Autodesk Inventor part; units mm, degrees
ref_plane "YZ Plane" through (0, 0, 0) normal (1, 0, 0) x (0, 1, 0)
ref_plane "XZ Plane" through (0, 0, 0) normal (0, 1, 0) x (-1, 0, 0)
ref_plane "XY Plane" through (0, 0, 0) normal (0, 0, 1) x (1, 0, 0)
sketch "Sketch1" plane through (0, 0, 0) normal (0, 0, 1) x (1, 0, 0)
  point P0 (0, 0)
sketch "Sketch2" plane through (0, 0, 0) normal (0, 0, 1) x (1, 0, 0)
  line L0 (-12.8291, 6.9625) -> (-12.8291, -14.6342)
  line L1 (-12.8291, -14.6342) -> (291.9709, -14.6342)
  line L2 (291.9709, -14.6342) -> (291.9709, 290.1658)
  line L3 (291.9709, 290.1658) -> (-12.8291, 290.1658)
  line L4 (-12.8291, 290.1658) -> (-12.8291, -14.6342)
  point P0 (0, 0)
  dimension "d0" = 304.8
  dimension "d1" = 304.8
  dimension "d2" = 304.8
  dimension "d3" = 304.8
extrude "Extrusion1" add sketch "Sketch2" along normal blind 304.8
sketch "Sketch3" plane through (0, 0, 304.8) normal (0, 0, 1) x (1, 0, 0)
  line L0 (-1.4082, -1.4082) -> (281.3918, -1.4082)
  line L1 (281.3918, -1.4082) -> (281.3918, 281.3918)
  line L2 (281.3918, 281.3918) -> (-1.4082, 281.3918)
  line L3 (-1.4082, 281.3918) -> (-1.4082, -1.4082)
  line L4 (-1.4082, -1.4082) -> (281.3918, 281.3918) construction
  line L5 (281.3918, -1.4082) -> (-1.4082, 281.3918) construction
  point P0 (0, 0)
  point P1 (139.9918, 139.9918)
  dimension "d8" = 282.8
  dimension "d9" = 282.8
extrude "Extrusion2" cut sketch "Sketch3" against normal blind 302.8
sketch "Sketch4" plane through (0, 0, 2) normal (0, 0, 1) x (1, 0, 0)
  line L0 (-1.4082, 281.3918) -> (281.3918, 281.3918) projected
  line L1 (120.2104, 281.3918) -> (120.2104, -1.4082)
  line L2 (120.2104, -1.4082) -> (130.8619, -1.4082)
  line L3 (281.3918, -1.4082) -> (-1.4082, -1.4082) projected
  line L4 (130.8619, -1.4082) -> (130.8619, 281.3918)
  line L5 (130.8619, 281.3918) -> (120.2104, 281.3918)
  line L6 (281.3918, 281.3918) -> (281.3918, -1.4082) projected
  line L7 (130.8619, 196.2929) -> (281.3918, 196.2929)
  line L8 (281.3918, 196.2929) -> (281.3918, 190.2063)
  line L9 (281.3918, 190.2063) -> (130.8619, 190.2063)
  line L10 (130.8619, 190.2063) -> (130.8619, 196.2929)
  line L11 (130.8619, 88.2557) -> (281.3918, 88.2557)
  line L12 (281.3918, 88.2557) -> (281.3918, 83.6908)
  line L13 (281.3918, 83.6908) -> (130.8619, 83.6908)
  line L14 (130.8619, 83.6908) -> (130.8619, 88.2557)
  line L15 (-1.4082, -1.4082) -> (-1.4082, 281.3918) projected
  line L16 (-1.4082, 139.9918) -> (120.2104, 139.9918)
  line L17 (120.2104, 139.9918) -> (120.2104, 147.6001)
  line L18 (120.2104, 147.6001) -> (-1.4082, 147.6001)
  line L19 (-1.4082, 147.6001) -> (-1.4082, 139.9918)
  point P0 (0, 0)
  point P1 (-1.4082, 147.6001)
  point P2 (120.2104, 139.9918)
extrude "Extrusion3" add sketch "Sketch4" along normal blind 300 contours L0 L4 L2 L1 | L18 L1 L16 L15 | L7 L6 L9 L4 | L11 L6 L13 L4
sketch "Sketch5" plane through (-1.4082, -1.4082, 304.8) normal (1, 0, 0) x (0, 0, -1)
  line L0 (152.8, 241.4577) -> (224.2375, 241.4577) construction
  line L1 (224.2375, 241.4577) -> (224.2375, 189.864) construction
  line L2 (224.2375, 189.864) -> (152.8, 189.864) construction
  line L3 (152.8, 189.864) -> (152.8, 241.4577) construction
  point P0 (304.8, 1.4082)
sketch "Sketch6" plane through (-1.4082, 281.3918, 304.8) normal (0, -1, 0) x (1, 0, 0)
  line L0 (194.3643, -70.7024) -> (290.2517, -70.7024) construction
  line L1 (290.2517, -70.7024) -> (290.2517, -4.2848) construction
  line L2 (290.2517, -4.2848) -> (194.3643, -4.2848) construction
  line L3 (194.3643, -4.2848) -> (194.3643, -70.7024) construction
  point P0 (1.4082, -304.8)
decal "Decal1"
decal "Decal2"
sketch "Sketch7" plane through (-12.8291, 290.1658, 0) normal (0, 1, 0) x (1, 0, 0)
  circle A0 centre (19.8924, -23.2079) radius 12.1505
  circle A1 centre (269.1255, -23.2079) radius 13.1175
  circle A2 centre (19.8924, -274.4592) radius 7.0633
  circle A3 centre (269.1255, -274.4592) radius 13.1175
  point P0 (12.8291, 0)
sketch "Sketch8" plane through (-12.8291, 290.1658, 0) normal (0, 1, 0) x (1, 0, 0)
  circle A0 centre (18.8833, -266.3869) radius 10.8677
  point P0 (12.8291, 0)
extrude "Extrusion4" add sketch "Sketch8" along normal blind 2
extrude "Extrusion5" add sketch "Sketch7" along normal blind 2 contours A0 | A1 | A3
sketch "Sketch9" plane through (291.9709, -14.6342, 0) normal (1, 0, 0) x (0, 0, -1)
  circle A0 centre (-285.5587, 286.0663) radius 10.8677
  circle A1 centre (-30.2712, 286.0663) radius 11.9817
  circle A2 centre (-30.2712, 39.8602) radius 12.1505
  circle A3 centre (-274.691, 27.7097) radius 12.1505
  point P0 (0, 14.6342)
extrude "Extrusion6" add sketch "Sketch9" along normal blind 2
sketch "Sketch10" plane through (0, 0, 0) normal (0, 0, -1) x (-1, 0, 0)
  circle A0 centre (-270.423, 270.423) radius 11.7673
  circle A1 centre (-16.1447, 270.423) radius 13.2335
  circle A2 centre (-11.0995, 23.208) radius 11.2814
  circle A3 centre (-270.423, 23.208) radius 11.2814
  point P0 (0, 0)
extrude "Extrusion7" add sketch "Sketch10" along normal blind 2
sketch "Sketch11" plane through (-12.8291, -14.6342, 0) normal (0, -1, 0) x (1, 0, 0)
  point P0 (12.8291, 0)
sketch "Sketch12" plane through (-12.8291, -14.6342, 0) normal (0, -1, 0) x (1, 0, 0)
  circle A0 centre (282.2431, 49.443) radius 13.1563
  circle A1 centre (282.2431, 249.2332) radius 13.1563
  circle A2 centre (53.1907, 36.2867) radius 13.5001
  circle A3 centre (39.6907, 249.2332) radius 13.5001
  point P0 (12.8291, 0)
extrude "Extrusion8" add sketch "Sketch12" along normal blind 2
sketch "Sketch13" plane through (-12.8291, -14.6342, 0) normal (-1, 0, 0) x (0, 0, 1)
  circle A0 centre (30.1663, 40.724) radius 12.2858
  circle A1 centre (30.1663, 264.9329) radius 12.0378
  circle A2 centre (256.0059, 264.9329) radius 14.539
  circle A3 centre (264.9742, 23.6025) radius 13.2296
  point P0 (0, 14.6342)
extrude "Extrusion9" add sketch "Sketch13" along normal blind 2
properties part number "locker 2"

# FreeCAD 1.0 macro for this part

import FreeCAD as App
import Part
import Sketcher
from FreeCAD import Vector
Q = App.Units.Quantity


def add_polygon(sketch, points):
    """Adds a closed chain of lines whose ends are joined by coincident constraints."""
    first, n = sketch.GeometryCount, len(points)
    for a, b in zip(points, points[1:] + points[:1]):
        sketch.addGeometry(Part.LineSegment(App.Vector(*a, 0), App.Vector(*b, 0)), False)
    for i in range(n):
        sketch.addConstraint(Sketcher.Constraint("Coincident", first + i, 2, first + (i + 1) % n, 1))

doc = App.newDocument("Part")
body = doc.addObject("PartDesign::Body", "Body")

# Sketch on XY plane
sketch1 = body.newObject("Sketcher::SketchObject", "Sketch")
sketch1.AttachmentSupport = (doc.getObject("XY_Plane"), [""])
sketch1.MapMode = "FlatFace"
add_polygon(sketch1, [(-13, 290), (-13, -15), (292, -15), (292, 290)])  # lines 0-3
sketch1.addConstraint([
    Sketcher.Constraint("Vertical", 0),
    Sketcher.Constraint("Horizontal", 1),
    Sketcher.Constraint("Vertical", 2),
    Sketcher.Constraint("Horizontal", 3),
    Sketcher.Constraint("Equal", 3, 0),
    Sketcher.Constraint("DistanceX", 1, 1, 1, 2, Q("304.8 mm")),
    Sketcher.Constraint("DistanceX", 0, 2, -1, 1, Q("12.829 mm")),
    Sketcher.Constraint("DistanceY", 0, 2, -1, 1, Q("14.6342 mm")),
])
pad1 = body.newObject("PartDesign::Pad", "Pad")
pad1.Profile = sketch1
pad1.Length = 304.8

# Sketch on XY plane
sketch2 = body.newObject("Sketcher::SketchObject", "Sketch001")
sketch2.AttachmentSupport = (doc.getObject("XY_Plane"), [""])
sketch2.MapMode = "FlatFace"
sketch2.AttachmentOffset = App.Placement(Vector(0, 0, 304.8), App.Rotation())
add_polygon(sketch2, [(-1, 281), (-1, -1), (281, -1), (281, 281)])  # lines 0-3
sketch2.addConstraint([
    Sketcher.Constraint("Vertical", 0),
    Sketcher.Constraint("Horizontal", 1),
    Sketcher.Constraint("Vertical", 2),
    Sketcher.Constraint("Horizontal", 3),
    Sketcher.Constraint("Equal", 3, 0),
    Sketcher.Constraint("DistanceX", 1, 1, 1, 2, Q("282.8 mm")),
    Sketcher.Constraint("DistanceX", 0, 2, -1, 1, Q("1.4082 mm")),
    Sketcher.Constraint("DistanceY", 0, 2, -1, 1, Q("1.4082 mm")),
])
pocket1 = body.newObject("PartDesign::Pocket", "Pocket")
pocket1.Profile = sketch2
pocket1.Length = 302.8

# Sketch on XY plane
sketch3 = body.newObject("Sketcher::SketchObject", "Sketch002")
sketch3.AttachmentSupport = (doc.getObject("XY_Plane"), [""])
sketch3.MapMode = "FlatFace"
sketch3.AttachmentOffset = App.Placement(Vector(0, 0, 2), App.Rotation())
add_polygon(sketch3, [(130.9, 281.4), (120.2, 281.4), (120.2, 147.6), (-1.4, 147.6), (-1.4, 140), (120.2, 140), (120.2, -1.4), (130.9, -1.4), (130.9, 83.7), (281.4, 83.7), (281.4, 88.3), (130.9, 88.3), (130.9, 190.2), (281.4, 190.2), (281.4, 196.3), (130.9, 196.3)])  # lines 0-15
sketch3.addConstraint([
    Sketcher.Constraint("Horizontal", 0),
    Sketcher.Constraint("Vertical", 1),
    Sketcher.Constraint("Horizontal", 2),
    Sketcher.Constraint("Vertical", 3),
    Sketcher.Constraint("Horizontal", 4),
    Sketcher.Constraint("Vertical", 5),
    Sketcher.Constraint("Horizontal", 6),
    Sketcher.Constraint("Vertical", 7),
    Sketcher.Constraint("Horizontal", 8),
    Sketcher.Constraint("Vertical", 9),
    Sketcher.Constraint("Horizontal", 10),
    Sketcher.Constraint("Vertical", 11),
    Sketcher.Constraint("Horizontal", 12),
    Sketcher.Constraint("Vertical", 13),
    Sketcher.Constraint("Horizontal", 14),
    Sketcher.Constraint("Vertical", 15),
    Sketcher.Constraint("Vertical", 1, 2, 4, 2),
    Sketcher.Constraint("Vertical", 7, 2, 10, 2),
    Sketcher.Constraint("Vertical", 9, 2, 12, 2),
    Sketcher.Constraint("Vertical", 11, 2, 14, 2),
    Sketcher.Constraint("Equal", 7, 15),
    Sketcher.Constraint("DistanceY", 5, 2, 5, 1, Q("141.4 mm")),
    Sketcher.Constraint("DistanceX", 8, 1, 8, 2, Q("150.53 mm")),
    Sketcher.Constraint("DistanceY", -1, 1, 1, 2, Q("147.6 mm")),
    Sketcher.Constraint("DistanceY", 3, 2, 0, 2, Q("141.4 mm")),
    Sketcher.Constraint("DistanceY", 7, 1, 7, 2, Q("85.099 mm")),
    Sketcher.Constraint("DistanceY", 9, 1, 9, 2, Q("4.565 mm")),
    Sketcher.Constraint("DistanceX", 3, 2, 6, 2, Q("132.27 mm")),
    Sketcher.Constraint("DistanceX", 0, 2, 0, 1, Q("10.6515 mm")),
    Sketcher.Constraint("DistanceY", 1, 2, 1, 1, Q("133.7917 mm")),
    Sketcher.Constraint("DistanceY", 11, 1, 11, 2, Q("101.9506 mm")),
    Sketcher.Constraint("DistanceX", -1, 1, 6, 2, Q("130.862 mm")),
])
pad2 = body.newObject("PartDesign::Pad", "Pad001")
pad2.Profile = sketch3
pad2.Length = 300

# Sketch on XZ plane
sketch4 = body.newObject("Sketcher::SketchObject", "Sketch003")
sketch4.AttachmentSupport = (doc.getObject("XZ_Plane"), [""])
sketch4.MapMode = "FlatFace"
sketch4.AttachmentOffset = App.Placement(Vector(0, 0, -290.1658), App.Rotation())
sketch4.addGeometry(Part.Circle(Vector(6, 266, 0), Vector(0, 0, 1), 11), False)
sketch4.addConstraint([
    Sketcher.Constraint("Diameter", 0, Q("21.7354 mm")),
    Sketcher.Constraint("DistanceY", -1, 1, 0, 3, Q("266.387 mm")),
    Sketcher.Constraint("DistanceX", -1, 1, 0, 3, Q("6.0542 mm")),
])
pad3 = body.newObject("PartDesign::Pad", "Pad002")
pad3.Profile = sketch4
pad3.Length = 2
pad3.Reversed = True

# Sketch on XZ plane
sketch5 = body.newObject("Sketcher::SketchObject", "Sketch004")
sketch5.AttachmentSupport = (doc.getObject("XZ_Plane"), [""])
sketch5.MapMode = "FlatFace"
sketch5.AttachmentOffset = App.Placement(Vector(0, 0, -290.1658), App.Rotation())
sketch5.addGeometry([
    Part.Circle(Vector(7, 23, 0), Vector(0, 0, 1), 12),
    Part.Circle(Vector(256, 23, 0), Vector(0, 0, 1), 13),
    Part.Circle(Vector(256, 274, 0), Vector(0, 0, 1), 13),
], False)
sketch5.addConstraint([
    Sketcher.Constraint("Equal", 1, 2),
    Sketcher.Constraint("Horizontal", 0, 3, 1, 3),
    Sketcher.Constraint("Vertical", 1, 3, 2, 3),
    Sketcher.Constraint("Diameter", 0, Q("24.301 mm")),
    Sketcher.Constraint("Diameter", 1, Q("26.235 mm")),
    Sketcher.Constraint("DistanceY", -1, 1, 0, 3, Q("23.208 mm")),
    Sketcher.Constraint("DistanceX", 0, 3, 1, 3, Q("249.233 mm")),
    Sketcher.Constraint("DistanceX", -1, 1, 0, 3, Q("7.0633 mm")),
    Sketcher.Constraint("DistanceY", -1, 1, 2, 3, Q("274.4592 mm")),
])
pad4 = body.newObject("PartDesign::Pad", "Pad003")
pad4.Profile = sketch5
pad4.Length = 2
pad4.Reversed = True

# Sketch on YZ plane
sketch6 = body.newObject("Sketcher::SketchObject", "Sketch005")
sketch6.AttachmentSupport = (doc.getObject("YZ_Plane"), [""])
sketch6.MapMode = "FlatFace"
sketch6.AttachmentOffset = App.Placement(Vector(0, 0, 291.9709), App.Rotation())
sketch6.addGeometry([
    Part.Circle(Vector(271, 286, 0), Vector(0, 0, 1), 11),
    Part.Circle(Vector(271, 30, 0), Vector(0, 0, 1), 12),
    Part.Circle(Vector(25, 30, 0), Vector(0, 0, 1), 12),
    Part.Circle(Vector(13, 275, 0), Vector(0, 0, 1), 12),
], False)
sketch6.addConstraint([
    Sketcher.Constraint("Equal", 2, 3),
    Sketcher.Constraint("Horizontal", 1, 3, 2, 3),
    Sketcher.Constraint("Vertical", 0, 3, 1, 3),
    Sketcher.Constraint("Diameter", 2, Q("24.301 mm")),
    Sketcher.Constraint("Diameter", 0, Q("21.7354 mm")),
    Sketcher.Constraint("Diameter", 1, Q("23.9634 mm")),
    Sketcher.Constraint("DistanceX", -1, 1, 0, 3, Q("271.432 mm")),
    Sketcher.Constraint("DistanceX", -1, 1, 2, 3, Q("25.226 mm")),
    Sketcher.Constraint("DistanceY", -1, 1, 3, 3, Q("274.691 mm")),
    Sketcher.Constraint("DistanceY", -1, 1, 0, 3, Q("285.5587 mm")),
    Sketcher.Constraint("DistanceY", -1, 1, 1, 3, Q("30.2712 mm")),
    Sketcher.Constraint("DistanceX", -1, 1, 3, 3, Q("13.0755 mm")),
])
pad5 = body.newObject("PartDesign::Pad", "Pad004")
pad5.Profile = sketch6
pad5.Length = 2

# Sketch on XY plane
sketch7 = body.newObject("Sketcher::SketchObject", "Sketch006")
sketch7.AttachmentSupport = (doc.getObject("XY_Plane"), [""])
sketch7.MapMode = "FlatFace"
sketch7.addGeometry([
    Part.Circle(Vector(270, 270, 0), Vector(0, 0, 1), 12),
    Part.Circle(Vector(16, 270, 0), Vector(0, 0, 1), 13),
    Part.Circle(Vector(11, 23, 0), Vector(0, 0, 1), 11),
    Part.Circle(Vector(270, 23, 0), Vector(0, 0, 1), 11),
], False)
sketch7.addConstraint([
    Sketcher.Constraint("Equal", 2, 3),
    Sketcher.Constraint("Horizontal", 0, 3, 1, 3),
    Sketcher.Constraint("Horizontal", 2, 3, 3, 3),
    Sketcher.Constraint("Vertical", 0, 3, 3, 3),
    Sketcher.Constraint("Diameter", 1, Q("26.467 mm")),
    Sketcher.Constraint("Diameter", 0, Q("23.5346 mm")),
    Sketcher.Constraint("Diameter", 2, Q("22.5628 mm")),
    Sketcher.Constraint("DistanceX", -1, 1, 0, 3, Q("270.423 mm")),
    Sketcher.Constraint("DistanceY", -1, 1, 0, 3, Q("270.423 mm")),
    Sketcher.Constraint("DistanceY", -1, 1, 2, 3, Q("23.208 mm")),
    Sketcher.Constraint("DistanceX", -1, 1, 1, 3, Q("16.1447 mm")),
    Sketcher.Constraint("DistanceX", -1, 1, 2, 3, Q("11.0995 mm")),
])
pad6 = body.newObject("PartDesign::Pad", "Pad005")
pad6.Profile = sketch7
pad6.Length = 2
pad6.Reversed = True

# Sketch on XZ plane
sketch8 = body.newObject("Sketcher::SketchObject", "Sketch007")
sketch8.AttachmentSupport = (doc.getObject("XZ_Plane"), [""])
sketch8.MapMode = "FlatFace"
sketch8.AttachmentOffset = App.Placement(Vector(0, 0, 14.6342), App.Rotation())
sketch8.addGeometry([
    Part.Circle(Vector(269, 49, 0), Vector(0, 0, 1), 13),
    Part.Circle(Vector(269, 249, 0), Vector(0, 0, 1), 13),
    Part.Circle(Vector(40, 36, 0), Vector(0, 0, 1), 14),
    Part.Circle(Vector(27, 249, 0), Vector(0, 0, 1), 14),
], False)
sketch8.addConstraint([
    Sketcher.Constraint("Equal", 0, 1),
    Sketcher.Constraint("Equal", 2, 3),
    Sketcher.Constraint("Horizontal", 1, 3, 3, 3),
    Sketcher.Constraint("Vertical", 0, 3, 1, 3),
    Sketcher.Constraint("Diameter", 0, Q("26.3126 mm")),
    Sketcher.Constraint("Diameter", 2, Q("27.0002 mm")),
    Sketcher.Constraint("DistanceX", 3, 3, 2, 3, Q("13.5 mm")),
    Sketcher.Constraint("DistanceX", -1, 1, 0, 3, Q("269.414 mm")),
    Sketcher.Constraint("DistanceY", -1, 1, 0, 3, Q("49.443 mm")),
    Sketcher.Constraint("DistanceY", -1, 1, 1, 3, Q("249.2332 mm")),
    Sketcher.Constraint("DistanceX", -1, 1, 2, 3, Q("40.3616 mm")),
    Sketcher.Constraint("DistanceY", -1, 1, 2, 3, Q("36.2867 mm")),
])
pad7 = body.newObject("PartDesign::Pad", "Pad006")
pad7.Profile = sketch8
pad7.Length = 2

# Sketch on YZ plane
sketch9 = body.newObject("Sketcher::SketchObject", "Sketch008")
sketch9.AttachmentSupport = (doc.getObject("YZ_Plane"), [""])
sketch9.MapMode = "FlatFace"
sketch9.AttachmentOffset = App.Placement(Vector(0, 0, -12.8291), App.Rotation())
sketch9.addGeometry([
    Part.Circle(Vector(26, 30, 0), Vector(0, 0, 1), 12),
    Part.Circle(Vector(250, 30, 0), Vector(0, 0, 1), 12),
    Part.Circle(Vector(250, 256, 0), Vector(0, 0, 1), 15),
    Part.Circle(Vector(9, 265, 0), Vector(0, 0, 1), 13),
], False)
sketch9.addConstraint([
    Sketcher.Constraint("Horizontal", 0, 3, 1, 3),
    Sketcher.Constraint("Vertical", 1, 3, 2, 3),
    Sketcher.Constraint("Diameter", 2, Q("29.078 mm")),
    Sketcher.Constraint("Diameter", 0, Q("24.5716 mm")),
    Sketcher.Constraint("Diameter", 1, Q("24.0756 mm")),
    Sketcher.Constraint("Diameter", 3, Q("26.4592 mm")),
    Sketcher.Constraint("DistanceY", -1, 1, 2, 3, Q("256.006 mm")),
    Sketcher.Constraint("DistanceX", 0, 3, 1, 3, Q("224.209 mm")),
    Sketcher.Constraint("DistanceY", 0, 3, 3, 3, Q("234.808 mm")),
    Sketcher.Constraint("DistanceX", -1, 1, 0, 3, Q("26.0898 mm")),
    Sketcher.Constraint("DistanceY", -1, 1, 0, 3, Q("30.1663 mm")),
    Sketcher.Constraint("DistanceX", -1, 1, 3, 3, Q("8.9683 mm")),
])
pad8 = body.newObject("PartDesign::Pad", "Pad007")
pad8.Profile = sketch9
pad8.Length = 2
pad8.Reversed = True

doc.recompute()
